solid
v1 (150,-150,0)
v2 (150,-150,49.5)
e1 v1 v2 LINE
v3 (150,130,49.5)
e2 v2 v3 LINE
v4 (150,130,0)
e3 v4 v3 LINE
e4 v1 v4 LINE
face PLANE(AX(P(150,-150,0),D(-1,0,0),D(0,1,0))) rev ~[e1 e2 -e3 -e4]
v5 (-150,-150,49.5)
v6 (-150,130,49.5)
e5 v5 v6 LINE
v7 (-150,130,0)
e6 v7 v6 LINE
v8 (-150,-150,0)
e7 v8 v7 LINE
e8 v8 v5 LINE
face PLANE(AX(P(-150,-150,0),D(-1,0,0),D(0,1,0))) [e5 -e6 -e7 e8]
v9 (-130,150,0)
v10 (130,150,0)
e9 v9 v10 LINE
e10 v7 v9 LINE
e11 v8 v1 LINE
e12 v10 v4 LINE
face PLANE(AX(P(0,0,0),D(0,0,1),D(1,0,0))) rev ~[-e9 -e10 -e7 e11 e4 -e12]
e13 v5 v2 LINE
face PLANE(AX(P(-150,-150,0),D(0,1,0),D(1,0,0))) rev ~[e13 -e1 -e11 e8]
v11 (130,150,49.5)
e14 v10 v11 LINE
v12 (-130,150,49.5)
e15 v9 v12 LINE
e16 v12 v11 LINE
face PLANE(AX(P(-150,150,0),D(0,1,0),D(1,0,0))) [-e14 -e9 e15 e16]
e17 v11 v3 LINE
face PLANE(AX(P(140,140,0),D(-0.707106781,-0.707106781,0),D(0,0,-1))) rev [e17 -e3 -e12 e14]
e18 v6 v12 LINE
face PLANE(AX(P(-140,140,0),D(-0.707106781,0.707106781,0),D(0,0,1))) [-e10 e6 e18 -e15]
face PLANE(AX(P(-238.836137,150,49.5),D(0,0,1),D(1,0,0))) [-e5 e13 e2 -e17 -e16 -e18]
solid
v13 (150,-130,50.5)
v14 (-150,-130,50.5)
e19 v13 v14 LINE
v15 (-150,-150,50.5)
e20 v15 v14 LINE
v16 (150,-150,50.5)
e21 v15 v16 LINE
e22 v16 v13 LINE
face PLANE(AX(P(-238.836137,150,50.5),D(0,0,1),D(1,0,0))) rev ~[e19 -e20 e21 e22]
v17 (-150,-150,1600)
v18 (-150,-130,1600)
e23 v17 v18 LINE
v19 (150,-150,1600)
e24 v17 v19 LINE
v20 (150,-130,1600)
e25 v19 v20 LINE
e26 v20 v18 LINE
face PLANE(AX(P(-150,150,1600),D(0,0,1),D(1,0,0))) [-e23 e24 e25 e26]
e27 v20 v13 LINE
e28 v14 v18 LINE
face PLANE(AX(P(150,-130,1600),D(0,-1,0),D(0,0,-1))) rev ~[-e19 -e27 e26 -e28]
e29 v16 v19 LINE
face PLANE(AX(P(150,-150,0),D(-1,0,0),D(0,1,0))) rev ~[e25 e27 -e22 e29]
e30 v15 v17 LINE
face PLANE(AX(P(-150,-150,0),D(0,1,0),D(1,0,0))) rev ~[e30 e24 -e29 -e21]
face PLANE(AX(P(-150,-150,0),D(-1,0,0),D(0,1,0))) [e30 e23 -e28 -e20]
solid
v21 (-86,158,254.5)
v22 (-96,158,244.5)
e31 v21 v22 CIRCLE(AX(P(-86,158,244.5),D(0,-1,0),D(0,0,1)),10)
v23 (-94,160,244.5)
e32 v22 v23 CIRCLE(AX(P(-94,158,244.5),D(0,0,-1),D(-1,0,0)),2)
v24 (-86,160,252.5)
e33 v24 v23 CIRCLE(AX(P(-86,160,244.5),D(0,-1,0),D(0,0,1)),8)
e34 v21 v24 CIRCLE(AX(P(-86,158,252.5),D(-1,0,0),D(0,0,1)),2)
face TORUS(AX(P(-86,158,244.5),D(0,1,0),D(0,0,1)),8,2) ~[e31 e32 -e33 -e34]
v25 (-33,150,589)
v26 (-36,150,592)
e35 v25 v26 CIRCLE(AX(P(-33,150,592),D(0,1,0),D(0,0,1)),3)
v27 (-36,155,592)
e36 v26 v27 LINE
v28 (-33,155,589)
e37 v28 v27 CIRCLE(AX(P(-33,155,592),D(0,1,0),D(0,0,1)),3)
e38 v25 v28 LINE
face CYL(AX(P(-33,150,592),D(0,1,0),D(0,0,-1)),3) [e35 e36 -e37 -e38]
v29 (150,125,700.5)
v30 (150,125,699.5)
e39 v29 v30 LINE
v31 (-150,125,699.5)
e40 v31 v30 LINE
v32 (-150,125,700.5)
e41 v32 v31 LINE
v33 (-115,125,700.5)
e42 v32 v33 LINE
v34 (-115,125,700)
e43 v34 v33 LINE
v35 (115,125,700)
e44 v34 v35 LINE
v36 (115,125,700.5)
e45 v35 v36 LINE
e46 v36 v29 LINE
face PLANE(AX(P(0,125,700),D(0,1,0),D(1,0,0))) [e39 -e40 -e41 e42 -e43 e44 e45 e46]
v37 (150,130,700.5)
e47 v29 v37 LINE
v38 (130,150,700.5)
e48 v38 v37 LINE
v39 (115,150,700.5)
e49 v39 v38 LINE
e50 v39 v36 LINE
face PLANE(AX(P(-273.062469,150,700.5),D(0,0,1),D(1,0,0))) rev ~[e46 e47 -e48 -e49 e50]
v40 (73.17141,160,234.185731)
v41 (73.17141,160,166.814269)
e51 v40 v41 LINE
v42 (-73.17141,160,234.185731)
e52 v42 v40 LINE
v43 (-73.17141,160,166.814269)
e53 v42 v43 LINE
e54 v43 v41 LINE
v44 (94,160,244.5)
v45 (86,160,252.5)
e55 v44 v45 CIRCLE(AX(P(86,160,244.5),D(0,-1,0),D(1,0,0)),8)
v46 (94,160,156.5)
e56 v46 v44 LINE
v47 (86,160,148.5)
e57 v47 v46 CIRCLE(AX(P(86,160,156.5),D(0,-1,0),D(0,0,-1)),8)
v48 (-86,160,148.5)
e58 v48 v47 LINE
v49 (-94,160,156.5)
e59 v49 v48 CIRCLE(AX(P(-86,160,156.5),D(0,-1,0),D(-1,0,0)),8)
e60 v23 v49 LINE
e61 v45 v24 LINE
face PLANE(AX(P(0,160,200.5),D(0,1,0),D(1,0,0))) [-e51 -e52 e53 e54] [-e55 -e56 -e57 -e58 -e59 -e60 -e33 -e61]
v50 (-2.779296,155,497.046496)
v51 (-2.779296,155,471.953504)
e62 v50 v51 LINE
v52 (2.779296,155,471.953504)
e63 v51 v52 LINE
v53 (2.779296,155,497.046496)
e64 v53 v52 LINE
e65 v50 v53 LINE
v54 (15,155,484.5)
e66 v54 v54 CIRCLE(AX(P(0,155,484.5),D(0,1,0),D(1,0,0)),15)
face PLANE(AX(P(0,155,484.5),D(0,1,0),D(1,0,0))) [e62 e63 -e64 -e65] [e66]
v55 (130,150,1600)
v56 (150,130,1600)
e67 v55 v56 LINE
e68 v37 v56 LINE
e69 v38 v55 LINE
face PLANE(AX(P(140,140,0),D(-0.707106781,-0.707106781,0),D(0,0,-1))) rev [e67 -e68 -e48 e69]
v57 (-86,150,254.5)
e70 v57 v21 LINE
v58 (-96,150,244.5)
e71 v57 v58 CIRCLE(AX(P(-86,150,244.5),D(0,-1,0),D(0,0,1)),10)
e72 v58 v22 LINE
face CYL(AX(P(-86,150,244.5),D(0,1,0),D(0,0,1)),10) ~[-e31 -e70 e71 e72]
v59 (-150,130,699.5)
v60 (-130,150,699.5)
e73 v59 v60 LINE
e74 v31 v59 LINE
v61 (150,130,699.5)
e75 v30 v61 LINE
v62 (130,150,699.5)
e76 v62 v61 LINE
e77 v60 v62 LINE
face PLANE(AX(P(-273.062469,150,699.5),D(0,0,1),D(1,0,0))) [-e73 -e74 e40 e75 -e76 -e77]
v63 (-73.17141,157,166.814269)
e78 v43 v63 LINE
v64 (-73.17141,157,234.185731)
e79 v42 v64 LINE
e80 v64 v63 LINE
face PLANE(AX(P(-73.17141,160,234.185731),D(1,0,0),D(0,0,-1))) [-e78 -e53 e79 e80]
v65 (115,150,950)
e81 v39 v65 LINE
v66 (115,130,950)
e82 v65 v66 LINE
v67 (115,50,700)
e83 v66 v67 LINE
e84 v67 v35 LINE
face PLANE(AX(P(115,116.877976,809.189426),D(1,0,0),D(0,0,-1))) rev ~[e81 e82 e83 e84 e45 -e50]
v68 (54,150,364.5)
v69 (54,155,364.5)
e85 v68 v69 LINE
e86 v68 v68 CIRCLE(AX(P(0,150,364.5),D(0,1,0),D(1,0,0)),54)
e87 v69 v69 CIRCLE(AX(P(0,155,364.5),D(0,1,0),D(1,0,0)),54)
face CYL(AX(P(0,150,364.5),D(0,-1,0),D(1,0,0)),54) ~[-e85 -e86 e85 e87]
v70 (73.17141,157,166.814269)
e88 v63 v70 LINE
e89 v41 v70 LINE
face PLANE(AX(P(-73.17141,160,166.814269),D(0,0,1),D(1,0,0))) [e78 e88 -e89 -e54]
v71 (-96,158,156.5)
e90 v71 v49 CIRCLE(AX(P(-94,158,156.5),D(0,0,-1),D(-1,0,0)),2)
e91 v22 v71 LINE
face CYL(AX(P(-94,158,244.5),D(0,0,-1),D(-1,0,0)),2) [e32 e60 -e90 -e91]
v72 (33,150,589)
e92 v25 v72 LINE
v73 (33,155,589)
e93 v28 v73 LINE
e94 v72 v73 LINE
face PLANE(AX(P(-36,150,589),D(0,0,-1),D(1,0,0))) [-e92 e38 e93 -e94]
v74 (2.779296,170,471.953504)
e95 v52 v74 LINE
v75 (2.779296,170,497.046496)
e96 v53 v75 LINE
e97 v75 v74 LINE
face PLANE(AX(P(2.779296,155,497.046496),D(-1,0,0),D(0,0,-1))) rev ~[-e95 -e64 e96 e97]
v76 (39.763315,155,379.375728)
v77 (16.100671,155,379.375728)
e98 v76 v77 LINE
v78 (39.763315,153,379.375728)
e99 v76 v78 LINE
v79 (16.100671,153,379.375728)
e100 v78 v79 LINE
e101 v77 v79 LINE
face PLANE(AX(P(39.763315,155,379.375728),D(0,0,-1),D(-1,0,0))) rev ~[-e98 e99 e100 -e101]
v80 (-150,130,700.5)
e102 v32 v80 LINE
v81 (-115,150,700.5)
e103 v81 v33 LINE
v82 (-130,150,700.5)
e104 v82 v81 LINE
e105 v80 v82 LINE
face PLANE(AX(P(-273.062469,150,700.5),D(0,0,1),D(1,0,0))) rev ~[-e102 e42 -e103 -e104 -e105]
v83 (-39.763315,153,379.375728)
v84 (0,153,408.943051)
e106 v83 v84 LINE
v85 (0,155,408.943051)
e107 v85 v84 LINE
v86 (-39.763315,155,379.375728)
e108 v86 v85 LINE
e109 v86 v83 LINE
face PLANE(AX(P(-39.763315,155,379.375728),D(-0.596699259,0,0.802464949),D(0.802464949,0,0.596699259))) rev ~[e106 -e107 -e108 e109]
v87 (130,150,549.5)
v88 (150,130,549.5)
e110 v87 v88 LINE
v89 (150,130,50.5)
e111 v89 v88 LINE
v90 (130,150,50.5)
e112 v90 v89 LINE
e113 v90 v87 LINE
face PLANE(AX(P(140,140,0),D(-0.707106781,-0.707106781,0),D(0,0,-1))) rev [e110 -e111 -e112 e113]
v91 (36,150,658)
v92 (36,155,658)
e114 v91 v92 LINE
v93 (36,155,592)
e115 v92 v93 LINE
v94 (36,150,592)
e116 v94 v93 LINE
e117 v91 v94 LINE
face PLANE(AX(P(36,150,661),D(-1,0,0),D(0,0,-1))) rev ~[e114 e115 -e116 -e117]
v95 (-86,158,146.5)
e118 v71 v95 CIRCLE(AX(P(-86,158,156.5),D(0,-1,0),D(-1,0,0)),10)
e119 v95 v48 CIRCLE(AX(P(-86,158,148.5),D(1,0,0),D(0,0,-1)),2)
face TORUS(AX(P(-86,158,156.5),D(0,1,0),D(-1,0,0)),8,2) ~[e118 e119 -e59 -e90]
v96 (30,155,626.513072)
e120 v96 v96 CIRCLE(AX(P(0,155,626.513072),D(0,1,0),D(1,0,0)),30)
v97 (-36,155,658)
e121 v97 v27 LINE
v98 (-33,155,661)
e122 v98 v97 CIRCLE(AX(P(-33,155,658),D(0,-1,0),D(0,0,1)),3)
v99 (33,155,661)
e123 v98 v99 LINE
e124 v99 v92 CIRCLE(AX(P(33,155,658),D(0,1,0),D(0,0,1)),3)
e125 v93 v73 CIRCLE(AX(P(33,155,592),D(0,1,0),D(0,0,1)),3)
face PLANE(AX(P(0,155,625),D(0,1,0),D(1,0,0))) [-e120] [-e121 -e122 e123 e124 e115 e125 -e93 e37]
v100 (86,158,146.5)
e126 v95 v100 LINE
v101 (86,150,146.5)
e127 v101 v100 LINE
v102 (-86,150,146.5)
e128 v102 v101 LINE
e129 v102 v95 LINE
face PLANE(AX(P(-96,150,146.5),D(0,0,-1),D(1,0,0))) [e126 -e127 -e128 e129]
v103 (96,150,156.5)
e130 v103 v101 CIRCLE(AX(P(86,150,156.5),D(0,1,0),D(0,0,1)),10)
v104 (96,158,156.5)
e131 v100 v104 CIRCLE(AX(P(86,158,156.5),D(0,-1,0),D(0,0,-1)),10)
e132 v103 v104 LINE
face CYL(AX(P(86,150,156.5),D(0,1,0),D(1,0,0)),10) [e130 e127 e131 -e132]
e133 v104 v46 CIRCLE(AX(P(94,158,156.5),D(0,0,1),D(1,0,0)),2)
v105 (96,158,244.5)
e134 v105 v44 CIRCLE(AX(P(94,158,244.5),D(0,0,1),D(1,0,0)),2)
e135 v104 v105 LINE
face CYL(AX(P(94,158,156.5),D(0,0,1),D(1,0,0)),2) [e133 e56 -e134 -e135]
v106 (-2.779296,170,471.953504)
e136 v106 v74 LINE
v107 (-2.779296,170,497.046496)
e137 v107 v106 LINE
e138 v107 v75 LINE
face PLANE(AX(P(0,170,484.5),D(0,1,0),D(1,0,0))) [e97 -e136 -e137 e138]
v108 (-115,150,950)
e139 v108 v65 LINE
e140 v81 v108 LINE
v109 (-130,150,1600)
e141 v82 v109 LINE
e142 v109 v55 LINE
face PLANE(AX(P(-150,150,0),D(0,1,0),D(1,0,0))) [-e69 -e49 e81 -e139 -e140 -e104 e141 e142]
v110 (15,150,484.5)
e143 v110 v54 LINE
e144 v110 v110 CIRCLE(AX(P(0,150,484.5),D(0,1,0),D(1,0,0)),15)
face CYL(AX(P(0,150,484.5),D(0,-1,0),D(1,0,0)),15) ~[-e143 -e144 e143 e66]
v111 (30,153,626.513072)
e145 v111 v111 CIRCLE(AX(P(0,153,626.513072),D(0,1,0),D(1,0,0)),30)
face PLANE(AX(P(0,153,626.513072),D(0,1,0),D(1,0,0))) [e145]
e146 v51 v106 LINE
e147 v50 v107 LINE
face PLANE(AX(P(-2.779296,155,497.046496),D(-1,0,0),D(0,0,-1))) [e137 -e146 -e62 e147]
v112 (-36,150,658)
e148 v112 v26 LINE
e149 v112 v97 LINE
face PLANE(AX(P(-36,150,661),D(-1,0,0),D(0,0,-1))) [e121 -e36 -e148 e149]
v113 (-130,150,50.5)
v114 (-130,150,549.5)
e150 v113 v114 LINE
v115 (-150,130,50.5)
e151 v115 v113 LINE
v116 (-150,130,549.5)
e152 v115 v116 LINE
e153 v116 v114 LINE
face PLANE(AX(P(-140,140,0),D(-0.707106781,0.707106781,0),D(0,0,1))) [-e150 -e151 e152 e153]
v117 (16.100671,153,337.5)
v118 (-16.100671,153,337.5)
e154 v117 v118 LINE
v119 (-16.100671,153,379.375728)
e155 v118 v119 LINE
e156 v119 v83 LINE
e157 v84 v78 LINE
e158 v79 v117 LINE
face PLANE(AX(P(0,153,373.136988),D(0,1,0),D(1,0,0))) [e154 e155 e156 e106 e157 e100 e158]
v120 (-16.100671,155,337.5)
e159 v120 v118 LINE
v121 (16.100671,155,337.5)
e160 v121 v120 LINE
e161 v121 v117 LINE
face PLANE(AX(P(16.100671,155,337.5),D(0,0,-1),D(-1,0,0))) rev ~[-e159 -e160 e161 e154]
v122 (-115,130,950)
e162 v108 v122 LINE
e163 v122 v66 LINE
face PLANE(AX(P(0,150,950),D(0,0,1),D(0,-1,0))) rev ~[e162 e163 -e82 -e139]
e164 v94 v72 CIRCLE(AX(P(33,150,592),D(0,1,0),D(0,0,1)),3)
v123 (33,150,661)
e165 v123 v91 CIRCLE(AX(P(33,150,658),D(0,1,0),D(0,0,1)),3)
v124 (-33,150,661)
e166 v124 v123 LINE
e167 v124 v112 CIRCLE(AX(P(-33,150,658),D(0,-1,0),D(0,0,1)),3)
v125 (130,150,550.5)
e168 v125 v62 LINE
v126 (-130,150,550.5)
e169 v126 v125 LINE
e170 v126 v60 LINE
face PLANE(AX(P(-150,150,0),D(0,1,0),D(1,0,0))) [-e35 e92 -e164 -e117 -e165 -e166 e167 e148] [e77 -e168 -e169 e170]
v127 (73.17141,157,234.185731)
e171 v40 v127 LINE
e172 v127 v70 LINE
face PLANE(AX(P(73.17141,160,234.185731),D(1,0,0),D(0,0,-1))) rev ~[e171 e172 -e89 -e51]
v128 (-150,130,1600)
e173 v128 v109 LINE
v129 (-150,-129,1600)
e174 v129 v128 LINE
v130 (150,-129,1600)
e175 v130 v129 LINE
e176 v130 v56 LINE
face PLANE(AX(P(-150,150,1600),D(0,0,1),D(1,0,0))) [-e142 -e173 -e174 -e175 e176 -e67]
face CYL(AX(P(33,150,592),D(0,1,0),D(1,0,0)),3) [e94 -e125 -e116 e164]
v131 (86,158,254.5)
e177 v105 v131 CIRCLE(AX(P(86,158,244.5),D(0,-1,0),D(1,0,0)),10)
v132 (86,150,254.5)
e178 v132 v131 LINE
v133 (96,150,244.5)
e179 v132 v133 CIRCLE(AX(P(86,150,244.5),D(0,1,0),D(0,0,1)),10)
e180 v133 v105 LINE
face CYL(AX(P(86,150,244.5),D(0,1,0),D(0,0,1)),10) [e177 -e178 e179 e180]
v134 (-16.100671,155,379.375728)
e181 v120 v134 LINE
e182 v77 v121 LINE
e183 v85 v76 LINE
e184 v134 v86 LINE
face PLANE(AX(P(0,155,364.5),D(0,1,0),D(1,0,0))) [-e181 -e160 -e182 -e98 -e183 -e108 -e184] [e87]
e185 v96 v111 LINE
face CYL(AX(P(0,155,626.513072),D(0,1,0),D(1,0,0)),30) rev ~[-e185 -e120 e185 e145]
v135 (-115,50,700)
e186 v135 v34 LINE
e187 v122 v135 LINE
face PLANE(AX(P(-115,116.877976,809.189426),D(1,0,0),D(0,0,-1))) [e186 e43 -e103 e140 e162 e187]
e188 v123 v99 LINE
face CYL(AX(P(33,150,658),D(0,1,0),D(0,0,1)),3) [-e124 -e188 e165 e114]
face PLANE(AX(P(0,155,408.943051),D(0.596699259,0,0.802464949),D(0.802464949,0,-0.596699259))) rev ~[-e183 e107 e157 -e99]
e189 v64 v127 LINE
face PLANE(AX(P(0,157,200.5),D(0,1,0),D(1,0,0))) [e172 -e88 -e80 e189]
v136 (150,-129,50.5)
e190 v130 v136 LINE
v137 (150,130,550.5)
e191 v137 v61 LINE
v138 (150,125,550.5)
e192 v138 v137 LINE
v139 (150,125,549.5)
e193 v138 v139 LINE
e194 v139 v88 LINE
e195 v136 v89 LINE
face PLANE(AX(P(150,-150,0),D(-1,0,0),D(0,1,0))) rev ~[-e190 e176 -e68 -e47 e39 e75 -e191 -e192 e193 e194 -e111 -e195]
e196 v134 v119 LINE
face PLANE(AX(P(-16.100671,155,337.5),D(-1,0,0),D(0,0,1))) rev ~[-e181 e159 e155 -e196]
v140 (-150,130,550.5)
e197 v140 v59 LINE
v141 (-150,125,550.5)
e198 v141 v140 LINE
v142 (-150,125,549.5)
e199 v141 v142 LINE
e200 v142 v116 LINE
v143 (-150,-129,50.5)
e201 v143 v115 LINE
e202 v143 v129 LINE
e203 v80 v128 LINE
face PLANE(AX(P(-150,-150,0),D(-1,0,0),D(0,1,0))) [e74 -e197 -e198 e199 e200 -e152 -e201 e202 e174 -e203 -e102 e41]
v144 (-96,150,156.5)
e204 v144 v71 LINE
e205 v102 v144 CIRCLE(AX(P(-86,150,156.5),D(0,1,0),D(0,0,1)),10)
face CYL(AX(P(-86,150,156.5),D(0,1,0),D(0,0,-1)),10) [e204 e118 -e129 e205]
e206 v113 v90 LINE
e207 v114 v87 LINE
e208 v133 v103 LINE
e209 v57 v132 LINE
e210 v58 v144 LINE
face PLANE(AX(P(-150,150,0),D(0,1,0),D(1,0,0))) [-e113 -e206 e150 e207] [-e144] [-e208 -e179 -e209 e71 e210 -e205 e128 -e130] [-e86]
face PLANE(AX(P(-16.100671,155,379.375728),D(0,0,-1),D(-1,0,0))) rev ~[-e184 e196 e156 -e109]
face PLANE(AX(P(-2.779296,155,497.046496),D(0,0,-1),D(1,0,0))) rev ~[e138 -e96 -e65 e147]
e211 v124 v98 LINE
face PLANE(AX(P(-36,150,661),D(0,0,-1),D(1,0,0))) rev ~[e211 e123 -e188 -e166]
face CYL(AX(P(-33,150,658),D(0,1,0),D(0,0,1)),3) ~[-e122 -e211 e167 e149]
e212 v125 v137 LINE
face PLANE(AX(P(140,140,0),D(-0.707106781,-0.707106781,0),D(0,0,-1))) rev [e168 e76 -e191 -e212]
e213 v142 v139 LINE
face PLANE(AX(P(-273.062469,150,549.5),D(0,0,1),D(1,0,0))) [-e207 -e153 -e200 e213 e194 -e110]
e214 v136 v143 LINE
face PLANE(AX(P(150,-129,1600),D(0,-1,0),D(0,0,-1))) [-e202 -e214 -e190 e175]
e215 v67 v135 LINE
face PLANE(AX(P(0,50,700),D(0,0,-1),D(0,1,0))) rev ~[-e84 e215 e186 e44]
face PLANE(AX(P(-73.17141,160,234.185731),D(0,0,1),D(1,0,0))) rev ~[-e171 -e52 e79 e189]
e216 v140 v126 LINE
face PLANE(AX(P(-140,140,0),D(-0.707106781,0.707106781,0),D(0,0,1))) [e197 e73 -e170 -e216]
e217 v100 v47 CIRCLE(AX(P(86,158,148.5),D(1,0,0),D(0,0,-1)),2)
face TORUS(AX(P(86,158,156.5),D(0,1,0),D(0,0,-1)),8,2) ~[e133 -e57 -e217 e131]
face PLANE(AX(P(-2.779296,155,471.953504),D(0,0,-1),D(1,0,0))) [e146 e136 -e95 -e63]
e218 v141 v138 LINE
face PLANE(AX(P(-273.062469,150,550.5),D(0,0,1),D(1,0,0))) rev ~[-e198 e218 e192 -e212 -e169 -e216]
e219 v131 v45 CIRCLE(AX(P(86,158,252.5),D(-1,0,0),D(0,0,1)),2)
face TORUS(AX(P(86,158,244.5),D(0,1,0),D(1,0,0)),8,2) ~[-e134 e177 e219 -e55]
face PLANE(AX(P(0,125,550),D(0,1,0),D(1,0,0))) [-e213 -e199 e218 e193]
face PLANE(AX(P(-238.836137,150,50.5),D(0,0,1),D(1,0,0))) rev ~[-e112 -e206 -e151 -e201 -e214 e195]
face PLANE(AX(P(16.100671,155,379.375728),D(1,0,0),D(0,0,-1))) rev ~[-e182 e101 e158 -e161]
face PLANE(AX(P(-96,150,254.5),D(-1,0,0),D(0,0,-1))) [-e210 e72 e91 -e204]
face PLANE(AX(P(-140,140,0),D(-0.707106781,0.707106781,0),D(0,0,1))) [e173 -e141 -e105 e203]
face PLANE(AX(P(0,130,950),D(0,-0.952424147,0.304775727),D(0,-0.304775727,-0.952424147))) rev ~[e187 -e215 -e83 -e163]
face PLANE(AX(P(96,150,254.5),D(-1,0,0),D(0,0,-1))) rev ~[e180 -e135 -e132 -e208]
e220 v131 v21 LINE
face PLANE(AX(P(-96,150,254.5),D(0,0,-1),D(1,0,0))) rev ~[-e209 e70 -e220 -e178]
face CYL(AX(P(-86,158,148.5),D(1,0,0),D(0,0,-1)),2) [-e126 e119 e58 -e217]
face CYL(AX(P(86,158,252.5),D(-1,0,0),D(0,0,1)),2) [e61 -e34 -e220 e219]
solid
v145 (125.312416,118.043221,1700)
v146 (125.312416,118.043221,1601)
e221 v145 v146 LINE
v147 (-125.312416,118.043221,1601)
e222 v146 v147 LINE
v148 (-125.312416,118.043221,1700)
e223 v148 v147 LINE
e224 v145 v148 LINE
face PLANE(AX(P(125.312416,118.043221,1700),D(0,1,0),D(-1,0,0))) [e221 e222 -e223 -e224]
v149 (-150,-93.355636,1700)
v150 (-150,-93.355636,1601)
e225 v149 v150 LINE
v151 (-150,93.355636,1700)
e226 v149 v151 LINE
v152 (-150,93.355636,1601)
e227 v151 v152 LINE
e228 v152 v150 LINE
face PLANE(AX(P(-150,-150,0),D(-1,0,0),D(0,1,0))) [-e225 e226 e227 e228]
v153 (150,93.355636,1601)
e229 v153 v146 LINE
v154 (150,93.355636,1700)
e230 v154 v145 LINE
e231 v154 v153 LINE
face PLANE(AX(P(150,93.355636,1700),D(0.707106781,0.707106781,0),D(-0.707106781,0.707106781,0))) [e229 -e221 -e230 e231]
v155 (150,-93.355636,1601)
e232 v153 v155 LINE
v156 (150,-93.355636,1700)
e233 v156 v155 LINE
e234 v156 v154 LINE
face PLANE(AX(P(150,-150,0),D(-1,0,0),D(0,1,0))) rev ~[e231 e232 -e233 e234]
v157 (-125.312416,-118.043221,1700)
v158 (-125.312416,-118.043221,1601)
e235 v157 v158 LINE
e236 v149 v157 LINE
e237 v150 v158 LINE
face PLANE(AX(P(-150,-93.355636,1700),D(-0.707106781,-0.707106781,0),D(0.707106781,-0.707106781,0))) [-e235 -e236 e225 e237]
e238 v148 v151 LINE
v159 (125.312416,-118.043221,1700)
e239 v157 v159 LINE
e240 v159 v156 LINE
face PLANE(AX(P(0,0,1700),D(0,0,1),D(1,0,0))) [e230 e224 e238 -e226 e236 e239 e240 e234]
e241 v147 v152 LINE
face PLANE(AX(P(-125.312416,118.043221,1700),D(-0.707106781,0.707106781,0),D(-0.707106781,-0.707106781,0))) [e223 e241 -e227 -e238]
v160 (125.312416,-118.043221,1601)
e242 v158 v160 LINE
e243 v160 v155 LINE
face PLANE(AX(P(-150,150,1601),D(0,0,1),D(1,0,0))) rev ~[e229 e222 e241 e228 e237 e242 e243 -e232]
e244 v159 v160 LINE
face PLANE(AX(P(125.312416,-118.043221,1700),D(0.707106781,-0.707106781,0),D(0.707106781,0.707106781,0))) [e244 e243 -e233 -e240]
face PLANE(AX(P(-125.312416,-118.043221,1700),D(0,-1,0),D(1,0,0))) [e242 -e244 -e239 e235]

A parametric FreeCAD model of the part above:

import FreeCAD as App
import Part
import Sketcher
Q = App.Units.Quantity


def edges_at(feature, points):
    """Names of the edges that pass closest to the given points."""
    edges = feature.Shape.Edges
    near = lambda p: min(range(len(edges)), key=lambda i: edges[i].distToShape(Part.Vertex(*p))[0])
    return sorted({f"Edge{near(p) + 1}" for p in points})

doc = App.newDocument("Part")
body = doc.addObject("PartDesign::Body", "Body")
body.AllowCompound = True

# Sketch on XY plane
sketch1 = body.newObject("Sketcher::SketchObject", "Sketch")
sketch1.AttachmentSupport = (doc.getObject("XY_Plane"), [""])
sketch1.MapMode = "FlatFace"
sketch1.addGeometry([
    Part.LineSegment(App.Vector(-150, 150, 0), App.Vector(-150, -150, 0)),
    Part.LineSegment(App.Vector(-150, -150, 0), App.Vector(150, -150, 0)),
    Part.LineSegment(App.Vector(150, -150, 0), App.Vector(150, 150, 0)),
    Part.LineSegment(App.Vector(150, 150, 0), App.Vector(-150, 150, 0)),
], False)
sketch1.addConstraint([
    Sketcher.Constraint("Coincident", 0, 2, 1, 1),
    Sketcher.Constraint("Coincident", 1, 2, 2, 1),
    Sketcher.Constraint("Coincident", 2, 2, 3, 1),
    Sketcher.Constraint("Coincident", 3, 2, 0, 1),
    Sketcher.Constraint("Vertical", 0),
    Sketcher.Constraint("Horizontal", 1),
    Sketcher.Constraint("Vertical", 2),
    Sketcher.Constraint("Horizontal", 3),
    Sketcher.Constraint("Symmetric", 0, 2, 2, 2, -1, 1),
    Sketcher.Constraint("Equal", 3, 0),
    Sketcher.Constraint("DistanceX", 1, 1, 1, 2, Q("300 mm")),
])
pad1 = body.newObject("PartDesign::Pad", "Pad")
pad1.Profile = sketch1
pad1.Length = 1700

# Sketch on XZ plane
sketch2 = body.newObject("Sketcher::SketchObject", "Sketch001")
sketch2.AttachmentSupport = (doc.getObject("XZ_Plane"), [""])
sketch2.MapMode = "FlatFace"
sketch2.AttachmentOffset = App.Placement(App.Vector(0, 0, -150), App.Rotation())
sketch2.addGeometry([
    Part.LineSegment(App.Vector(-150, 1600, 0), App.Vector(-150, 1601, 0)),
    Part.LineSegment(App.Vector(-150, 1601, 0), App.Vector(150, 1601, 0)),
    Part.LineSegment(App.Vector(150, 1601, 0), App.Vector(150, 1600, 0)),
    Part.LineSegment(App.Vector(150, 1600, 0), App.Vector(-150, 1600, 0)),
], False)
sketch2.addConstraint([
    Sketcher.Constraint("Coincident", 0, 2, 1, 1),
    Sketcher.Constraint("Coincident", 1, 2, 2, 1),
    Sketcher.Constraint("Coincident", 2, 2, 3, 1),
    Sketcher.Constraint("Coincident", 3, 2, 0, 1),
    Sketcher.Constraint("Vertical", 0),
    Sketcher.Constraint("Horizontal", 1),
    Sketcher.Constraint("Vertical", 2),
    Sketcher.Constraint("Horizontal", 3),
    Sketcher.Constraint("DistanceX", 1, 1, 1, 2, Q("300 mm")),
    Sketcher.Constraint("DistanceY", 0, 1, 0, 2, Q("1 mm")),
    Sketcher.Constraint("DistanceX", 0, 2, -1, 1, Q("150 mm")),
    Sketcher.Constraint("DistanceY", -1, 1, 0, 2, Q("1601 mm")),
])
pocket1 = body.newObject("PartDesign::Pocket", "Pocket")
pocket1.Profile = sketch2
pocket1.Length = 1800
pocket1.Reversed = True

# Sketch on XY plane
sketch3 = body.newObject("Sketcher::SketchObject", "Sketch002")
sketch3.AttachmentSupport = (doc.getObject("XY_Plane"), [""])
sketch3.MapMode = "FlatFace"
sketch3.AttachmentOffset = App.Placement(App.Vector(0, 0, 1700), App.Rotation())
sketch3.addGeometry([
    Part.LineSegment(App.Vector(237, -93, 0), App.Vector(150, -93, 0)),  # 0
    Part.LineSegment(App.Vector(150, -93, 0), App.Vector(125, -118, 0)),  # 1
    Part.LineSegment(App.Vector(125, -118, 0), App.Vector(-125, -118, 0)),  # 2
    Part.LineSegment(App.Vector(-125, -118, 0), App.Vector(-150, -93, 0)),  # 3
    Part.LineSegment(App.Vector(-150, -93, 0), App.Vector(-237, -93, 0)),  # 4
    Part.LineSegment(App.Vector(-237, -93, 0), App.Vector(-237, -247, 0)),  # 5
    Part.LineSegment(App.Vector(-237, -247, 0), App.Vector(237, -247, 0)),  # 6
    Part.LineSegment(App.Vector(237, -247, 0), App.Vector(237, -93, 0)),  # 7
    Part.LineSegment(App.Vector(-237, 93, 0), App.Vector(-150, 93, 0)),  # 8
    Part.LineSegment(App.Vector(-150, 93, 0), App.Vector(-125, 118, 0)),  # 9
    Part.LineSegment(App.Vector(-125, 118, 0), App.Vector(125, 118, 0)),  # 10
    Part.LineSegment(App.Vector(125, 118, 0), App.Vector(150, 93, 0)),  # 11
    Part.LineSegment(App.Vector(150, 93, 0), App.Vector(237, 93, 0)),  # 12
    Part.LineSegment(App.Vector(237, 93, 0), App.Vector(237, 247, 0)),  # 13
    Part.LineSegment(App.Vector(237, 247, 0), App.Vector(-237, 247, 0)),  # 14
    Part.LineSegment(App.Vector(-237, 247, 0), App.Vector(-237, 93, 0)),  # 15
], False)
sketch3.addConstraint([
    Sketcher.Constraint("Coincident", 0, 2, 1, 1),
    Sketcher.Constraint("Coincident", 1, 2, 2, 1),
    Sketcher.Constraint("Coincident", 2, 2, 3, 1),
    Sketcher.Constraint("Coincident", 3, 2, 4, 1),
    Sketcher.Constraint("Coincident", 4, 2, 5, 1),
    Sketcher.Constraint("Coincident", 5, 2, 6, 1),
    Sketcher.Constraint("Coincident", 6, 2, 7, 1),
    Sketcher.Constraint("Coincident", 7, 2, 0, 1),
    Sketcher.Constraint("Coincident", 8, 2, 9, 1),
    Sketcher.Constraint("Coincident", 9, 2, 10, 1),
    Sketcher.Constraint("Coincident", 10, 2, 11, 1),
    Sketcher.Constraint("Coincident", 11, 2, 12, 1),
    Sketcher.Constraint("Coincident", 12, 2, 13, 1),
    Sketcher.Constraint("Coincident", 13, 2, 14, 1),
    Sketcher.Constraint("Coincident", 14, 2, 15, 1),
    Sketcher.Constraint("Coincident", 15, 2, 8, 1),
    Sketcher.Constraint("Horizontal", 0),
    Sketcher.Constraint("Horizontal", 2),
    Sketcher.Constraint("Horizontal", 4),
    Sketcher.Constraint("Vertical", 5),
    Sketcher.Constraint("Horizontal", 6),
    Sketcher.Constraint("Vertical", 7),
    Sketcher.Constraint("Horizontal", 8),
    Sketcher.Constraint("Horizontal", 10),
    Sketcher.Constraint("Horizontal", 12),
    Sketcher.Constraint("Vertical", 13),
    Sketcher.Constraint("Horizontal", 14),
    Sketcher.Constraint("Vertical", 15),
    Sketcher.Constraint("Symmetric", 0, 2, 8, 2, -1, 1),
    Sketcher.Constraint("Symmetric", 1, 2, 9, 2, -1, 1),
    Sketcher.Constraint("Symmetric", 3, 2, 11, 2, -1, 1),
    Sketcher.Constraint("Symmetric", 5, 2, 13, 2, -1, 1),
    Sketcher.Constraint("Symmetric", 0, 2, 3, 2, -2),
    Sketcher.Constraint("Perpendicular", 1, 3),
    Sketcher.Constraint("Perpendicular", 9, 11),
    Sketcher.Constraint("Vertical", 2, 2, 9, 2),
    Sketcher.Constraint("Vertical", 7, 2, 12, 2),
    Sketcher.Constraint("Vertical", 5, 2, 14, 2),
    Sketcher.Constraint("DistanceX", -1, 1, 0, 2, Q("150 mm")),
    Sketcher.Constraint("DistanceX", 2, 2, 2, 1, Q("250.624831 mm")),
    Sketcher.Constraint("DistanceX", 0, 2, 0, 1, Q("86.579596 mm")),
    Sketcher.Constraint("DistanceY", 5, 2, 5, 1, Q("153.724093 mm")),
    Sketcher.Constraint("DistanceY", 1, 2, -1, 1, Q("118.043221 mm")),
])
pocket2 = body.newObject("PartDesign::Pocket", "Pocket001")
pocket2.Profile = sketch3
pocket2.Length = 100
doc.recompute()

chamfer = body.newObject("PartDesign::Chamfer", "Chamfer")
chamfer.Base = (pocket2, edges_at(pocket2, [(150, 150, 800), (-150, 150, 800)]))
chamfer.Size = 20

# Sketch on XZ plane
sketch4 = body.newObject("Sketcher::SketchObject", "Sketch003")
sketch4.AttachmentSupport = (doc.getObject("XZ_Plane"), [""])
sketch4.MapMode = "FlatFace"
sketch4.AttachmentOffset = App.Placement(App.Vector(0, 0, -150), App.Rotation())
sketch4.addGeometry([
    Part.LineSegment(App.Vector(-238.8, 49.5, 0), App.Vector(-238.8, 50.5, 0)),
    Part.LineSegment(App.Vector(-238.8, 50.5, 0), App.Vector(238.8, 50.5, 0)),
    Part.LineSegment(App.Vector(238.8, 50.5, 0), App.Vector(238.8, 49.5, 0)),
    Part.LineSegment(App.Vector(238.8, 49.5, 0), App.Vector(-238.8, 49.5, 0)),
], False)
sketch4.addConstraint([
    Sketcher.Constraint("Coincident", 0, 2, 1, 1),
    Sketcher.Constraint("Coincident", 1, 2, 2, 1),
    Sketcher.Constraint("Coincident", 2, 2, 3, 1),
    Sketcher.Constraint("Coincident", 3, 2, 0, 1),
    Sketcher.Constraint("Vertical", 0),
    Sketcher.Constraint("Horizontal", 1),
    Sketcher.Constraint("Vertical", 2),
    Sketcher.Constraint("Horizontal", 3),
    Sketcher.Constraint("DistanceY", 0, 1, 0, 2, Q("1 mm")),
    Sketcher.Constraint("DistanceY", -1, 1, 0, 2, Q("50.5 mm")),
    Sketcher.Constraint("DistanceX", 1, 1, 1, 2, Q("477.672275 mm")),
    Sketcher.Constraint("DistanceX", 0, 2, -1, 1, Q("238.836137 mm")),
])
pocket3 = body.newObject("PartDesign::Pocket", "Pocket002")
pocket3.Profile = sketch4
pocket3.Length = 331
pocket3.Reversed = True

# Sketch on YZ plane
sketch5 = body.newObject("Sketcher::SketchObject", "Sketch004")
sketch5.AttachmentSupport = (doc.getObject("YZ_Plane"), [""])
sketch5.MapMode = "FlatFace"
sketch5.AttachmentOffset = App.Placement(App.Vector(0, 0, 150), App.Rotation())
sketch5.addGeometry([
    Part.LineSegment(App.Vector(-129, 1600, 0), App.Vector(-130, 1600, 0)),
    Part.LineSegment(App.Vector(-130, 1600, 0), App.Vector(-130, 50.5, 0)),
    Part.LineSegment(App.Vector(-130, 50.5, 0), App.Vector(-129, 50.5, 0)),
    Part.LineSegment(App.Vector(-129, 50.5, 0), App.Vector(-129, 1600, 0)),
], False)
sketch5.addConstraint([
    Sketcher.Constraint("Coincident", 0, 2, 1, 1),
    Sketcher.Constraint("Coincident", 1, 2, 2, 1),
    Sketcher.Constraint("Coincident", 2, 2, 3, 1),
    Sketcher.Constraint("Coincident", 3, 2, 0, 1),
    Sketcher.Constraint("Horizontal", 0),
    Sketcher.Constraint("Vertical", 1),
    Sketcher.Constraint("Horizontal", 2),
    Sketcher.Constraint("Vertical", 3),
    Sketcher.Constraint("DistanceX", 0, 2, 0, 1, Q("1 mm")),
    Sketcher.Constraint("DistanceY", 1, 2, 1, 1, Q("1549.5 mm")),
    Sketcher.Constraint("DistanceX", 0, 2, -1, 1, Q("130 mm")),
    Sketcher.Constraint("DistanceY", -1, 1, 0, 2, Q("1600 mm")),
])
pocket4 = body.newObject("PartDesign::Pocket", "Pocket003")
pocket4.Profile = sketch5
pocket4.Length = 331

# Sketch on YZ plane
sketch6 = body.newObject("Sketcher::SketchObject", "Sketch005")
sketch6.AttachmentSupport = (doc.getObject("YZ_Plane"), [""])
sketch6.MapMode = "FlatFace"
sketch6.addGeometry([
    Part.LineSegment(App.Vector(150, 700, 0), App.Vector(150, 950, 0)),
    Part.LineSegment(App.Vector(150, 950, 0), App.Vector(130, 950, 0)),
    Part.LineSegment(App.Vector(130, 950, 0), App.Vector(50, 700, 0)),
    Part.LineSegment(App.Vector(50, 700, 0), App.Vector(150, 700, 0)),
], False)
sketch6.addConstraint([
    Sketcher.Constraint("Coincident", 0, 2, 1, 1),
    Sketcher.Constraint("Coincident", 1, 2, 2, 1),
    Sketcher.Constraint("Coincident", 2, 2, 3, 1),
    Sketcher.Constraint("Coincident", 3, 2, 0, 1),
    Sketcher.Constraint("Vertical", 0),
    Sketcher.Constraint("Horizontal", 1),
    Sketcher.Constraint("Horizontal", 3),
    Sketcher.Constraint("DistanceX", 1, 2, 1, 1, Q("20 mm")),
    Sketcher.Constraint("DistanceX", 3, 1, 3, 2, Q("100 mm")),
    Sketcher.Constraint("DistanceY", 0, 1, 0, 2, Q("250 mm")),
    Sketcher.Constraint("DistanceX", -1, 1, 0, 2, Q("150 mm")),
    Sketcher.Constraint("DistanceY", -1, 1, 0, 2, Q("950 mm")),
])
pocket5 = body.newObject("PartDesign::Pocket", "Pocket004")
pocket5.Profile = sketch6
pocket5.Length = 230
pocket5.Midplane = True

# Sketch on XZ plane
sketch7 = body.newObject("Sketcher::SketchObject", "Sketch006")
sketch7.AttachmentSupport = (doc.getObject("XZ_Plane"), [""])
sketch7.MapMode = "FlatFace"
sketch7.AttachmentOffset = App.Placement(App.Vector(0, 0, -150), App.Rotation())
sketch7.addGeometry([
    Part.LineSegment(App.Vector(-273.1, 549.5, 0), App.Vector(-273.1, 550.5, 0)),
    Part.LineSegment(App.Vector(-273.1, 550.5, 0), App.Vector(273.1, 550.5, 0)),
    Part.LineSegment(App.Vector(273.1, 550.5, 0), App.Vector(273.1, 549.5, 0)),
    Part.LineSegment(App.Vector(273.1, 549.5, 0), App.Vector(-273.1, 549.5, 0)),
], False)
sketch7.addConstraint([
    Sketcher.Constraint("Coincident", 0, 2, 1, 1),
    Sketcher.Constraint("Coincident", 1, 2, 2, 1),
    Sketcher.Constraint("Coincident", 2, 2, 3, 1),
    Sketcher.Constraint("Coincident", 3, 2, 0, 1),
    Sketcher.Constraint("Vertical", 0),
    Sketcher.Constraint("Horizontal", 1),
    Sketcher.Constraint("Vertical", 2),
    Sketcher.Constraint("Horizontal", 3),
    Sketcher.Constraint("DistanceY", 0, 1, 0, 2, Q("1 mm")),
    Sketcher.Constraint("DistanceY", -1, 1, 0, 2, Q("550.5 mm")),
    Sketcher.Constraint("DistanceX", 1, 1, 1, 2, Q("546.124939 mm")),
    Sketcher.Constraint("DistanceX", 0, 2, -1, 1, Q("273.062469 mm")),
])
pocket6 = body.newObject("PartDesign::Pocket", "Pocket005")
pocket6.Profile = sketch7
pocket6.Length = 25
pocket6.Reversed = True
doc.recompute()

linearpattern = body.newObject("PartDesign::LinearPattern", "LinearPattern")
linearpattern.Originals = [pocket6]
linearpattern.Direction = (doc.getObject("Z_Axis"), [""])
linearpattern.Mode = "offset"
linearpattern.Offset = 150
linearpattern.Occurrences = 2
body.Tip = linearpattern

# Sketch on XZ plane
sketch8 = body.newObject("Sketcher::SketchObject", "Sketch007")
sketch8.AttachmentSupport = (doc.getObject("XZ_Plane"), [""])
sketch8.MapMode = "FlatFace"
sketch8.AttachmentOffset = App.Placement(App.Vector(0, 0, -150), App.Rotation())
sketch8.addGeometry([
    Part.LineSegment(App.Vector(-96, 146, 0), App.Vector(-96, 254, 0)),
    Part.LineSegment(App.Vector(-96, 254, 0), App.Vector(96, 254, 0)),
    Part.LineSegment(App.Vector(96, 254, 0), App.Vector(96, 146, 0)),
    Part.LineSegment(App.Vector(96, 146, 0), App.Vector(-96, 146, 0)),
], False)
sketch8.addConstraint([
    Sketcher.Constraint("Coincident", 0, 2, 1, 1),
    Sketcher.Constraint("Coincident", 1, 2, 2, 1),
    Sketcher.Constraint("Coincident", 2, 2, 3, 1),
    Sketcher.Constraint("Coincident", 3, 2, 0, 1),
    Sketcher.Constraint("Vertical", 0),
    Sketcher.Constraint("Horizontal", 1),
    Sketcher.Constraint("Vertical", 2),
    Sketcher.Constraint("Horizontal", 3),
    Sketcher.Constraint("DistanceX", 1, 1, 1, 2, Q("192 mm")),
    Sketcher.Constraint("DistanceY", 0, 1, 0, 2, Q("108 mm")),
    Sketcher.Constraint("DistanceX", 0, 2, -1, 1, Q("96 mm")),
    Sketcher.Constraint("DistanceY", -1, 1, 0, 2, Q("254.5 mm")),
])
pad2 = body.newObject("PartDesign::Pad", "Pad001")
pad2.Profile = sketch8
pad2.Length = 10
pad2.Reversed = True
doc.recompute()

fillet = body.newObject("PartDesign::Fillet", "Fillet")
fillet.Base = (pad2, edges_at(pad2, [
    (96, 155, 254.5),
    (96, 155, 146.5),
    (-96, 155, 146.5),
    (-96, 155, 254.5),
]))
fillet.Radius = 10
doc.recompute()

fillet2 = body.newObject("PartDesign::Fillet", "Fillet001")
fillet2.Base = (fillet, edges_at(fillet, [
    (-96, 160, 200.5),
    (0, 160, 146.5),
    (96, 160, 200.5),
    (0, 160, 254.5),
    (93.071, 160, 149.429),
    (93.071, 160, 251.571),
    (-93.071, 160, 251.571),
    (-93.071, 160, 149.429),
]))
fillet2.Radius = 2

# Sketch on XZ plane
sketch9 = body.newObject("Sketcher::SketchObject", "Sketch008")
sketch9.AttachmentSupport = (doc.getObject("XZ_Plane"), [""])
sketch9.MapMode = "FlatFace"
sketch9.AttachmentOffset = App.Placement(App.Vector(0, 0, -160), App.Rotation())
sketch9.addGeometry([
    Part.LineSegment(App.Vector(-73, 167, 0), App.Vector(-73, 234, 0)),
    Part.LineSegment(App.Vector(-73, 234, 0), App.Vector(73, 234, 0)),
    Part.LineSegment(App.Vector(73, 234, 0), App.Vector(73, 167, 0)),
    Part.LineSegment(App.Vector(73, 167, 0), App.Vector(-73, 167, 0)),
], False)
sketch9.addConstraint([
    Sketcher.Constraint("Coincident", 0, 2, 1, 1),
    Sketcher.Constraint("Coincident", 1, 2, 2, 1),
    Sketcher.Constraint("Coincident", 2, 2, 3, 1),
    Sketcher.Constraint("Coincident", 3, 2, 0, 1),
    Sketcher.Constraint("Vertical", 0),
    Sketcher.Constraint("Horizontal", 1),
    Sketcher.Constraint("Vertical", 2),
    Sketcher.Constraint("Horizontal", 3),
    Sketcher.Constraint("DistanceX", 1, 1, 1, 2, Q("146.342821 mm")),
    Sketcher.Constraint("DistanceY", 0, 1, 0, 2, Q("67.371462 mm")),
    Sketcher.Constraint("DistanceX", 0, 2, -1, 1, Q("73.17141 mm")),
    Sketcher.Constraint("DistanceY", -1, 1, 0, 2, Q("234.185731 mm")),
])
pocket7 = body.newObject("PartDesign::Pocket", "Pocket006")
pocket7.Profile = sketch9
pocket7.Length = 3
pocket7.Reversed = True

# Sketch on XZ plane
sketch10 = body.newObject("Sketcher::SketchObject", "Sketch009")
sketch10.AttachmentSupport = (doc.getObject("XZ_Plane"), [""])
sketch10.MapMode = "FlatFace"
sketch10.AttachmentOffset = App.Placement(App.Vector(0, 0, -150), App.Rotation())
sketch10.addGeometry([
    Part.LineSegment(App.Vector(-36, 589, 0), App.Vector(-36, 661, 0)),
    Part.LineSegment(App.Vector(-36, 661, 0), App.Vector(36, 661, 0)),
    Part.LineSegment(App.Vector(36, 661, 0), App.Vector(36, 589, 0)),
    Part.LineSegment(App.Vector(36, 589, 0), App.Vector(-36, 589, 0)),
], False)
sketch10.addConstraint([
    Sketcher.Constraint("Coincident", 0, 2, 1, 1),
    Sketcher.Constraint("Coincident", 1, 2, 2, 1),
    Sketcher.Constraint("Coincident", 2, 2, 3, 1),
    Sketcher.Constraint("Coincident", 3, 2, 0, 1),
    Sketcher.Constraint("Vertical", 0),
    Sketcher.Constraint("Horizontal", 1),
    Sketcher.Constraint("Vertical", 2),
    Sketcher.Constraint("Horizontal", 3),
    Sketcher.Constraint("Equal", 3, 0),
    Sketcher.Constraint("DistanceX", 1, 1, 1, 2, Q("72 mm")),
    Sketcher.Constraint("DistanceX", 0, 2, -1, 1, Q("36 mm")),
    Sketcher.Constraint("DistanceY", -1, 1, 0, 2, Q("661 mm")),
])
pad3 = body.newObject("PartDesign::Pad", "Pad002")
pad3.Profile = sketch10
pad3.Length = 5
pad3.Reversed = True
doc.recompute()

fillet3 = body.newObject("PartDesign::Fillet", "Fillet002")
fillet3.Base = (pad3, edges_at(pad3, [
    (36, 152.5, 661),
    (36, 152.5, 589),
    (-36, 152.5, 589),
    (-36, 152.5, 661),
]))
fillet3.Radius = 3

# Sketch on XZ plane
sketch11 = body.newObject("Sketcher::SketchObject", "Sketch010")
sketch11.AttachmentSupport = (doc.getObject("XZ_Plane"), [""])
sketch11.MapMode = "FlatFace"
sketch11.AttachmentOffset = App.Placement(App.Vector(0, 0, -155), App.Rotation())
sketch11.addGeometry(Part.Circle(App.Vector(0, 627, 0), App.Vector(0, 0, 1), 30), False)
sketch11.addConstraint([
    Sketcher.Constraint("PointOnObject", 0, 3, -2),
    Sketcher.Constraint("Diameter", 0, Q("60 mm")),
    Sketcher.Constraint("DistanceY", -1, 1, 0, 3, Q("626.513072 mm")),
])
pocket8 = body.newObject("PartDesign::Pocket", "Pocket007")
pocket8.Profile = sketch11
pocket8.Length = 2
pocket8.Reversed = True

# Sketch on XZ plane
sketch12 = body.newObject("Sketcher::SketchObject", "Sketch011")
sketch12.AttachmentSupport = (doc.getObject("XZ_Plane"), [""])
sketch12.MapMode = "FlatFace"
sketch12.AttachmentOffset = App.Placement(App.Vector(0, 0, -150), App.Rotation())
sketch12.addGeometry([
    Part.Circle(App.Vector(0, 364, 0), App.Vector(0, 0, 1), 54),
    Part.Circle(App.Vector(0, 484, 0), App.Vector(0, 0, 1), 15),
], False)
sketch12.addConstraint([
    Sketcher.Constraint("PointOnObject", 0, 3, -2),
    Sketcher.Constraint("PointOnObject", 1, 3, -2),
    Sketcher.Constraint("Diameter", 0, Q("108 mm")),
    Sketcher.Constraint("Diameter", 1, Q("30 mm")),
    Sketcher.Constraint("DistanceY", 0, 3, 1, 3, Q("120 mm")),
    Sketcher.Constraint("DistanceY", -1, 1, 0, 3, Q("364.5 mm")),
])
pad4 = body.newObject("PartDesign::Pad", "Pad003")
pad4.Profile = sketch12
pad4.Length = 5
pad4.Reversed = True

# Sketch on XZ plane
sketch13 = body.newObject("Sketcher::SketchObject", "Sketch012")
sketch13.AttachmentSupport = (doc.getObject("XZ_Plane"), [""])
sketch13.MapMode = "FlatFace"
sketch13.AttachmentOffset = App.Placement(App.Vector(0, 0, -155), App.Rotation())
sketch13.addGeometry([
    Part.LineSegment(App.Vector(-3, 472, 0), App.Vector(-3, 497, 0)),
    Part.LineSegment(App.Vector(-3, 497, 0), App.Vector(3, 497, 0)),
    Part.LineSegment(App.Vector(3, 497, 0), App.Vector(3, 472, 0)),
    Part.LineSegment(App.Vector(3, 472, 0), App.Vector(-3, 472, 0)),
], False)
sketch13.addConstraint([
    Sketcher.Constraint("Coincident", 0, 2, 1, 1),
    Sketcher.Constraint("Coincident", 1, 2, 2, 1),
    Sketcher.Constraint("Coincident", 2, 2, 3, 1),
    Sketcher.Constraint("Coincident", 3, 2, 0, 1),
    Sketcher.Constraint("Vertical", 0),
    Sketcher.Constraint("Horizontal", 1),
    Sketcher.Constraint("Vertical", 2),
    Sketcher.Constraint("Horizontal", 3),
    Sketcher.Constraint("DistanceX", 1, 1, 1, 2, Q("5.558592 mm")),
    Sketcher.Constraint("DistanceY", 0, 1, 0, 2, Q("25.092992 mm")),
    Sketcher.Constraint("DistanceX", 0, 2, -1, 1, Q("2.779296 mm")),
    Sketcher.Constraint("DistanceY", -1, 1, 0, 2, Q("497.046496 mm")),
])
pad5 = body.newObject("PartDesign::Pad", "Pad004")
pad5.Profile = sketch13
pad5.Length = 15
pad5.Reversed = True

# Sketch on XZ plane
sketch14 = body.newObject("Sketcher::SketchObject", "Sketch013")
sketch14.AttachmentSupport = (doc.getObject("XZ_Plane"), [""])
sketch14.MapMode = "FlatFace"
sketch14.AttachmentOffset = App.Placement(App.Vector(0, 0, -155), App.Rotation())
sketch14.addGeometry([
    Part.LineSegment(App.Vector(16, 338, 0), App.Vector(-16, 338, 0)),  # 0
    Part.LineSegment(App.Vector(-16, 338, 0), App.Vector(-16, 379, 0)),  # 1
    Part.LineSegment(App.Vector(-16, 379, 0), App.Vector(-40, 379, 0)),  # 2
    Part.LineSegment(App.Vector(-40, 379, 0), App.Vector(0, 409, 0)),  # 3
    Part.LineSegment(App.Vector(0, 409, 0), App.Vector(40, 379, 0)),  # 4
    Part.LineSegment(App.Vector(40, 379, 0), App.Vector(16, 379, 0)),  # 5
    Part.LineSegment(App.Vector(16, 379, 0), App.Vector(16, 338, 0)),  # 6
], False)
sketch14.addConstraint([
    Sketcher.Constraint("Coincident", 0, 2, 1, 1),
    Sketcher.Constraint("Coincident", 1, 2, 2, 1),
    Sketcher.Constraint("Coincident", 2, 2, 3, 1),
    Sketcher.Constraint("Coincident", 3, 2, 4, 1),
    Sketcher.Constraint("Coincident", 4, 2, 5, 1),
    Sketcher.Constraint("Coincident", 5, 2, 6, 1),
    Sketcher.Constraint("Coincident", 6, 2, 0, 1),
    Sketcher.Constraint("Horizontal", 0),
    Sketcher.Constraint("Vertical", 1),
    Sketcher.Constraint("Horizontal", 2),
    Sketcher.Constraint("Horizontal", 5),
    Sketcher.Constraint("Vertical", 6),
    Sketcher.Constraint("Symmetric", 2, 2, 4, 2, -2),
    Sketcher.Constraint("PointOnObject", 3, 2, -2),
    Sketcher.Constraint("Equal", 2, 5),
    Sketcher.Constraint("DistanceY", -1, 1, 0, 2, Q("337.5 mm")),
    Sketcher.Constraint("DistanceX", 0, 2, 0, 1, Q("32.201341 mm")),
    Sketcher.Constraint("DistanceY", 1, 1, 1, 2, Q("41.875728 mm")),
    Sketcher.Constraint("DistanceX", 2, 2, 2, 1, Q("23.662644 mm")),
    Sketcher.Constraint("DistanceY", -1, 1, 3, 2, Q("408.943051 mm")),
])
pocket9 = body.newObject("PartDesign::Pocket", "Pocket008")
pocket9.Profile = sketch14
pocket9.Length = 2
pocket9.Reversed = True

doc.recompute()
